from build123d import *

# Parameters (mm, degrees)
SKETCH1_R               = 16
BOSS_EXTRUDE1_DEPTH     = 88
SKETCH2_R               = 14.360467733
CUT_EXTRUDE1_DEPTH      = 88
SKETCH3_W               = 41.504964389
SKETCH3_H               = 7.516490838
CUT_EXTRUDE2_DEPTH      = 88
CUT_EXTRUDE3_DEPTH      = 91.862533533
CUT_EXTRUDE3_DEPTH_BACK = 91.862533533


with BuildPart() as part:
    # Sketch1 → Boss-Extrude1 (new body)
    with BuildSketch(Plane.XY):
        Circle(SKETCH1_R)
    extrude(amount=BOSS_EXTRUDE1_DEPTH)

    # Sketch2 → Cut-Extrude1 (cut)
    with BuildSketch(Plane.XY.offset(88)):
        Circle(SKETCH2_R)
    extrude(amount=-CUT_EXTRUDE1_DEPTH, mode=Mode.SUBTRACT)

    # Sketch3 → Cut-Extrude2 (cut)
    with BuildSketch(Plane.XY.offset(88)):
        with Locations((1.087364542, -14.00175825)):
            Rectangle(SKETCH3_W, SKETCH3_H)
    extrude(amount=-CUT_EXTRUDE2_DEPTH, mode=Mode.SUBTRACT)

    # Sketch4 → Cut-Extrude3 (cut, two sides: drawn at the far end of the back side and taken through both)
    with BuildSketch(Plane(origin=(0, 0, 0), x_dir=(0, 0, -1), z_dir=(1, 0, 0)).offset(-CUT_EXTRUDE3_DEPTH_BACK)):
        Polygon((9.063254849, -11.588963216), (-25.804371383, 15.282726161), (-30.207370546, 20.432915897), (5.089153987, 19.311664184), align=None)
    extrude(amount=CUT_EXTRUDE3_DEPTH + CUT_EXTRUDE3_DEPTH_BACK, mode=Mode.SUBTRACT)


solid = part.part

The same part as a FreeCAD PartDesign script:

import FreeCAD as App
import Part
import Sketcher
from FreeCAD import Vector
Q = App.Units.Quantity

doc = App.newDocument("Part")
body = doc.addObject("PartDesign::Body", "Body")

# Sketch on XY plane
sketch1 = body.newObject("Sketcher::SketchObject", "Sketch")
sketch1.AttachmentSupport = (doc.getObject("XY_Plane"), [""])
sketch1.MapMode = "FlatFace"
sketch1.addGeometry(Part.Circle(Vector(0, 0, 0), Vector(0, 0, 1), 16), False)
sketch1.addConstraint([
    Sketcher.Constraint("Coincident", 0, 3, -1, 1),
    Sketcher.Constraint("Diameter", 0, Q("32 mm")),
])
pad1 = body.newObject("PartDesign::Pad", "Pad")
pad1.Profile = sketch1
pad1.Length = 88

# Sketch on XY plane
sketch2 = body.newObject("Sketcher::SketchObject", "Sketch001")
sketch2.AttachmentSupport = (doc.getObject("XY_Plane"), [""])
sketch2.MapMode = "FlatFace"
sketch2.AttachmentOffset = App.Placement(Vector(0, 0, 88), App.Rotation())
sketch2.addGeometry(Part.Circle(Vector(0, 0, 0), Vector(0, 0, 1), 14), False)
sketch2.addConstraint([
    Sketcher.Constraint("Coincident", 0, 3, -1, 1),
    Sketcher.Constraint("Diameter", 0, Q("28.720935 mm")),
])
pocket1 = body.newObject("PartDesign::Pocket", "Pocket")
pocket1.Profile = sketch2
pocket1.Length = 88

# Sketch on XY plane
sketch3 = body.newObject("Sketcher::SketchObject", "Sketch002")
sketch3.AttachmentSupport = (doc.getObject("XY_Plane"), [""])
sketch3.MapMode = "FlatFace"
sketch3.AttachmentOffset = App.Placement(Vector(0, 0, 88), App.Rotation())
sketch3.addGeometry([
    Part.LineSegment(Vector(-20, -10, 0), Vector(-20, -18, 0)),
    Part.LineSegment(Vector(-20, -18, 0), Vector(22, -18, 0)),
    Part.LineSegment(Vector(22, -18, 0), Vector(22, -10, 0)),
    Part.LineSegment(Vector(22, -10, 0), Vector(-20, -10, 0)),
], False)
sketch3.addConstraint([
    Sketcher.Constraint("Coincident", 0, 2, 1, 1),
    Sketcher.Constraint("Coincident", 1, 2, 2, 1),
    Sketcher.Constraint("Coincident", 2, 2, 3, 1),
    Sketcher.Constraint("Coincident", 3, 2, 0, 1),
    Sketcher.Constraint("Vertical", 0),
    Sketcher.Constraint("Horizontal", 1),
    Sketcher.Constraint("Vertical", 2),
    Sketcher.Constraint("Horizontal", 3),
    Sketcher.Constraint("DistanceY", 0, 2, 0, 1, Q("7.516491 mm")),
    Sketcher.Constraint("DistanceX", 1, 1, 1, 2, Q("41.504964 mm")),
    Sketcher.Constraint("DistanceX", 0, 2, -1, 1, Q("19.665118 mm")),
    Sketcher.Constraint("DistanceY", 0, 2, -1, 1, Q("17.760004 mm")),
])
pocket2 = body.newObject("PartDesign::Pocket", "Pocket001")
pocket2.Profile = sketch3
pocket2.Length = 88

# Sketch on YZ plane
sketch4 = body.newObject("Sketcher::SketchObject", "Sketch003")
sketch4.AttachmentSupport = (doc.getObject("YZ_Plane"), [""])
sketch4.MapMode = "FlatFace"
sketch4.addGeometry([
    Part.LineSegment(Vector(15, 26, 0), Vector(-12, -9, 0)),
    Part.LineSegment(Vector(-12, -9, 0), Vector(19, -5, 0)),
    Part.LineSegment(Vector(19, -5, 0), Vector(20, 30, 0)),
    Part.LineSegment(Vector(20, 30, 0), Vector(15, 26, 0)),
], False)
sketch4.addConstraint([
    Sketcher.Constraint("Coincident", 0, 2, 1, 1),
    Sketcher.Constraint("Coincident", 1, 2, 2, 1),
    Sketcher.Constraint("Coincident", 2, 2, 3, 1),
    Sketcher.Constraint("Coincident", 3, 2, 0, 1),
    Sketcher.Constraint("DistanceY", 3, 2, 2, 2, Q("4.402999 mm")),
    Sketcher.Constraint("DistanceY", 0, 2, 1, 2, Q("3.974101 mm")),
    Sketcher.Constraint("Distance", 2, Q("35.314329 mm")),
    Sketcher.Constraint("DistanceY", -1, 1, 2, 2, Q("30.207371 mm")),
    Sketcher.Constraint("DistanceX", 1, 2, 2, 2, Q("1.121252 mm")),
    Sketcher.Constraint("DistanceX", 0, 2, 2, 2, Q("32.021879 mm")),
    Sketcher.Constraint("DistanceX", 3, 2, 2, 2, Q("5.15019 mm")),
    Sketcher.Constraint("DistanceX", 0, 2, -1, 1, Q("11.588963 mm")),
])
pocket3 = body.newObject("PartDesign::Pocket", "Pocket002")
pocket3.Profile = sketch4
pocket3.Type = "ThroughAll"
pocket3.Midplane = True

doc.recompute()
